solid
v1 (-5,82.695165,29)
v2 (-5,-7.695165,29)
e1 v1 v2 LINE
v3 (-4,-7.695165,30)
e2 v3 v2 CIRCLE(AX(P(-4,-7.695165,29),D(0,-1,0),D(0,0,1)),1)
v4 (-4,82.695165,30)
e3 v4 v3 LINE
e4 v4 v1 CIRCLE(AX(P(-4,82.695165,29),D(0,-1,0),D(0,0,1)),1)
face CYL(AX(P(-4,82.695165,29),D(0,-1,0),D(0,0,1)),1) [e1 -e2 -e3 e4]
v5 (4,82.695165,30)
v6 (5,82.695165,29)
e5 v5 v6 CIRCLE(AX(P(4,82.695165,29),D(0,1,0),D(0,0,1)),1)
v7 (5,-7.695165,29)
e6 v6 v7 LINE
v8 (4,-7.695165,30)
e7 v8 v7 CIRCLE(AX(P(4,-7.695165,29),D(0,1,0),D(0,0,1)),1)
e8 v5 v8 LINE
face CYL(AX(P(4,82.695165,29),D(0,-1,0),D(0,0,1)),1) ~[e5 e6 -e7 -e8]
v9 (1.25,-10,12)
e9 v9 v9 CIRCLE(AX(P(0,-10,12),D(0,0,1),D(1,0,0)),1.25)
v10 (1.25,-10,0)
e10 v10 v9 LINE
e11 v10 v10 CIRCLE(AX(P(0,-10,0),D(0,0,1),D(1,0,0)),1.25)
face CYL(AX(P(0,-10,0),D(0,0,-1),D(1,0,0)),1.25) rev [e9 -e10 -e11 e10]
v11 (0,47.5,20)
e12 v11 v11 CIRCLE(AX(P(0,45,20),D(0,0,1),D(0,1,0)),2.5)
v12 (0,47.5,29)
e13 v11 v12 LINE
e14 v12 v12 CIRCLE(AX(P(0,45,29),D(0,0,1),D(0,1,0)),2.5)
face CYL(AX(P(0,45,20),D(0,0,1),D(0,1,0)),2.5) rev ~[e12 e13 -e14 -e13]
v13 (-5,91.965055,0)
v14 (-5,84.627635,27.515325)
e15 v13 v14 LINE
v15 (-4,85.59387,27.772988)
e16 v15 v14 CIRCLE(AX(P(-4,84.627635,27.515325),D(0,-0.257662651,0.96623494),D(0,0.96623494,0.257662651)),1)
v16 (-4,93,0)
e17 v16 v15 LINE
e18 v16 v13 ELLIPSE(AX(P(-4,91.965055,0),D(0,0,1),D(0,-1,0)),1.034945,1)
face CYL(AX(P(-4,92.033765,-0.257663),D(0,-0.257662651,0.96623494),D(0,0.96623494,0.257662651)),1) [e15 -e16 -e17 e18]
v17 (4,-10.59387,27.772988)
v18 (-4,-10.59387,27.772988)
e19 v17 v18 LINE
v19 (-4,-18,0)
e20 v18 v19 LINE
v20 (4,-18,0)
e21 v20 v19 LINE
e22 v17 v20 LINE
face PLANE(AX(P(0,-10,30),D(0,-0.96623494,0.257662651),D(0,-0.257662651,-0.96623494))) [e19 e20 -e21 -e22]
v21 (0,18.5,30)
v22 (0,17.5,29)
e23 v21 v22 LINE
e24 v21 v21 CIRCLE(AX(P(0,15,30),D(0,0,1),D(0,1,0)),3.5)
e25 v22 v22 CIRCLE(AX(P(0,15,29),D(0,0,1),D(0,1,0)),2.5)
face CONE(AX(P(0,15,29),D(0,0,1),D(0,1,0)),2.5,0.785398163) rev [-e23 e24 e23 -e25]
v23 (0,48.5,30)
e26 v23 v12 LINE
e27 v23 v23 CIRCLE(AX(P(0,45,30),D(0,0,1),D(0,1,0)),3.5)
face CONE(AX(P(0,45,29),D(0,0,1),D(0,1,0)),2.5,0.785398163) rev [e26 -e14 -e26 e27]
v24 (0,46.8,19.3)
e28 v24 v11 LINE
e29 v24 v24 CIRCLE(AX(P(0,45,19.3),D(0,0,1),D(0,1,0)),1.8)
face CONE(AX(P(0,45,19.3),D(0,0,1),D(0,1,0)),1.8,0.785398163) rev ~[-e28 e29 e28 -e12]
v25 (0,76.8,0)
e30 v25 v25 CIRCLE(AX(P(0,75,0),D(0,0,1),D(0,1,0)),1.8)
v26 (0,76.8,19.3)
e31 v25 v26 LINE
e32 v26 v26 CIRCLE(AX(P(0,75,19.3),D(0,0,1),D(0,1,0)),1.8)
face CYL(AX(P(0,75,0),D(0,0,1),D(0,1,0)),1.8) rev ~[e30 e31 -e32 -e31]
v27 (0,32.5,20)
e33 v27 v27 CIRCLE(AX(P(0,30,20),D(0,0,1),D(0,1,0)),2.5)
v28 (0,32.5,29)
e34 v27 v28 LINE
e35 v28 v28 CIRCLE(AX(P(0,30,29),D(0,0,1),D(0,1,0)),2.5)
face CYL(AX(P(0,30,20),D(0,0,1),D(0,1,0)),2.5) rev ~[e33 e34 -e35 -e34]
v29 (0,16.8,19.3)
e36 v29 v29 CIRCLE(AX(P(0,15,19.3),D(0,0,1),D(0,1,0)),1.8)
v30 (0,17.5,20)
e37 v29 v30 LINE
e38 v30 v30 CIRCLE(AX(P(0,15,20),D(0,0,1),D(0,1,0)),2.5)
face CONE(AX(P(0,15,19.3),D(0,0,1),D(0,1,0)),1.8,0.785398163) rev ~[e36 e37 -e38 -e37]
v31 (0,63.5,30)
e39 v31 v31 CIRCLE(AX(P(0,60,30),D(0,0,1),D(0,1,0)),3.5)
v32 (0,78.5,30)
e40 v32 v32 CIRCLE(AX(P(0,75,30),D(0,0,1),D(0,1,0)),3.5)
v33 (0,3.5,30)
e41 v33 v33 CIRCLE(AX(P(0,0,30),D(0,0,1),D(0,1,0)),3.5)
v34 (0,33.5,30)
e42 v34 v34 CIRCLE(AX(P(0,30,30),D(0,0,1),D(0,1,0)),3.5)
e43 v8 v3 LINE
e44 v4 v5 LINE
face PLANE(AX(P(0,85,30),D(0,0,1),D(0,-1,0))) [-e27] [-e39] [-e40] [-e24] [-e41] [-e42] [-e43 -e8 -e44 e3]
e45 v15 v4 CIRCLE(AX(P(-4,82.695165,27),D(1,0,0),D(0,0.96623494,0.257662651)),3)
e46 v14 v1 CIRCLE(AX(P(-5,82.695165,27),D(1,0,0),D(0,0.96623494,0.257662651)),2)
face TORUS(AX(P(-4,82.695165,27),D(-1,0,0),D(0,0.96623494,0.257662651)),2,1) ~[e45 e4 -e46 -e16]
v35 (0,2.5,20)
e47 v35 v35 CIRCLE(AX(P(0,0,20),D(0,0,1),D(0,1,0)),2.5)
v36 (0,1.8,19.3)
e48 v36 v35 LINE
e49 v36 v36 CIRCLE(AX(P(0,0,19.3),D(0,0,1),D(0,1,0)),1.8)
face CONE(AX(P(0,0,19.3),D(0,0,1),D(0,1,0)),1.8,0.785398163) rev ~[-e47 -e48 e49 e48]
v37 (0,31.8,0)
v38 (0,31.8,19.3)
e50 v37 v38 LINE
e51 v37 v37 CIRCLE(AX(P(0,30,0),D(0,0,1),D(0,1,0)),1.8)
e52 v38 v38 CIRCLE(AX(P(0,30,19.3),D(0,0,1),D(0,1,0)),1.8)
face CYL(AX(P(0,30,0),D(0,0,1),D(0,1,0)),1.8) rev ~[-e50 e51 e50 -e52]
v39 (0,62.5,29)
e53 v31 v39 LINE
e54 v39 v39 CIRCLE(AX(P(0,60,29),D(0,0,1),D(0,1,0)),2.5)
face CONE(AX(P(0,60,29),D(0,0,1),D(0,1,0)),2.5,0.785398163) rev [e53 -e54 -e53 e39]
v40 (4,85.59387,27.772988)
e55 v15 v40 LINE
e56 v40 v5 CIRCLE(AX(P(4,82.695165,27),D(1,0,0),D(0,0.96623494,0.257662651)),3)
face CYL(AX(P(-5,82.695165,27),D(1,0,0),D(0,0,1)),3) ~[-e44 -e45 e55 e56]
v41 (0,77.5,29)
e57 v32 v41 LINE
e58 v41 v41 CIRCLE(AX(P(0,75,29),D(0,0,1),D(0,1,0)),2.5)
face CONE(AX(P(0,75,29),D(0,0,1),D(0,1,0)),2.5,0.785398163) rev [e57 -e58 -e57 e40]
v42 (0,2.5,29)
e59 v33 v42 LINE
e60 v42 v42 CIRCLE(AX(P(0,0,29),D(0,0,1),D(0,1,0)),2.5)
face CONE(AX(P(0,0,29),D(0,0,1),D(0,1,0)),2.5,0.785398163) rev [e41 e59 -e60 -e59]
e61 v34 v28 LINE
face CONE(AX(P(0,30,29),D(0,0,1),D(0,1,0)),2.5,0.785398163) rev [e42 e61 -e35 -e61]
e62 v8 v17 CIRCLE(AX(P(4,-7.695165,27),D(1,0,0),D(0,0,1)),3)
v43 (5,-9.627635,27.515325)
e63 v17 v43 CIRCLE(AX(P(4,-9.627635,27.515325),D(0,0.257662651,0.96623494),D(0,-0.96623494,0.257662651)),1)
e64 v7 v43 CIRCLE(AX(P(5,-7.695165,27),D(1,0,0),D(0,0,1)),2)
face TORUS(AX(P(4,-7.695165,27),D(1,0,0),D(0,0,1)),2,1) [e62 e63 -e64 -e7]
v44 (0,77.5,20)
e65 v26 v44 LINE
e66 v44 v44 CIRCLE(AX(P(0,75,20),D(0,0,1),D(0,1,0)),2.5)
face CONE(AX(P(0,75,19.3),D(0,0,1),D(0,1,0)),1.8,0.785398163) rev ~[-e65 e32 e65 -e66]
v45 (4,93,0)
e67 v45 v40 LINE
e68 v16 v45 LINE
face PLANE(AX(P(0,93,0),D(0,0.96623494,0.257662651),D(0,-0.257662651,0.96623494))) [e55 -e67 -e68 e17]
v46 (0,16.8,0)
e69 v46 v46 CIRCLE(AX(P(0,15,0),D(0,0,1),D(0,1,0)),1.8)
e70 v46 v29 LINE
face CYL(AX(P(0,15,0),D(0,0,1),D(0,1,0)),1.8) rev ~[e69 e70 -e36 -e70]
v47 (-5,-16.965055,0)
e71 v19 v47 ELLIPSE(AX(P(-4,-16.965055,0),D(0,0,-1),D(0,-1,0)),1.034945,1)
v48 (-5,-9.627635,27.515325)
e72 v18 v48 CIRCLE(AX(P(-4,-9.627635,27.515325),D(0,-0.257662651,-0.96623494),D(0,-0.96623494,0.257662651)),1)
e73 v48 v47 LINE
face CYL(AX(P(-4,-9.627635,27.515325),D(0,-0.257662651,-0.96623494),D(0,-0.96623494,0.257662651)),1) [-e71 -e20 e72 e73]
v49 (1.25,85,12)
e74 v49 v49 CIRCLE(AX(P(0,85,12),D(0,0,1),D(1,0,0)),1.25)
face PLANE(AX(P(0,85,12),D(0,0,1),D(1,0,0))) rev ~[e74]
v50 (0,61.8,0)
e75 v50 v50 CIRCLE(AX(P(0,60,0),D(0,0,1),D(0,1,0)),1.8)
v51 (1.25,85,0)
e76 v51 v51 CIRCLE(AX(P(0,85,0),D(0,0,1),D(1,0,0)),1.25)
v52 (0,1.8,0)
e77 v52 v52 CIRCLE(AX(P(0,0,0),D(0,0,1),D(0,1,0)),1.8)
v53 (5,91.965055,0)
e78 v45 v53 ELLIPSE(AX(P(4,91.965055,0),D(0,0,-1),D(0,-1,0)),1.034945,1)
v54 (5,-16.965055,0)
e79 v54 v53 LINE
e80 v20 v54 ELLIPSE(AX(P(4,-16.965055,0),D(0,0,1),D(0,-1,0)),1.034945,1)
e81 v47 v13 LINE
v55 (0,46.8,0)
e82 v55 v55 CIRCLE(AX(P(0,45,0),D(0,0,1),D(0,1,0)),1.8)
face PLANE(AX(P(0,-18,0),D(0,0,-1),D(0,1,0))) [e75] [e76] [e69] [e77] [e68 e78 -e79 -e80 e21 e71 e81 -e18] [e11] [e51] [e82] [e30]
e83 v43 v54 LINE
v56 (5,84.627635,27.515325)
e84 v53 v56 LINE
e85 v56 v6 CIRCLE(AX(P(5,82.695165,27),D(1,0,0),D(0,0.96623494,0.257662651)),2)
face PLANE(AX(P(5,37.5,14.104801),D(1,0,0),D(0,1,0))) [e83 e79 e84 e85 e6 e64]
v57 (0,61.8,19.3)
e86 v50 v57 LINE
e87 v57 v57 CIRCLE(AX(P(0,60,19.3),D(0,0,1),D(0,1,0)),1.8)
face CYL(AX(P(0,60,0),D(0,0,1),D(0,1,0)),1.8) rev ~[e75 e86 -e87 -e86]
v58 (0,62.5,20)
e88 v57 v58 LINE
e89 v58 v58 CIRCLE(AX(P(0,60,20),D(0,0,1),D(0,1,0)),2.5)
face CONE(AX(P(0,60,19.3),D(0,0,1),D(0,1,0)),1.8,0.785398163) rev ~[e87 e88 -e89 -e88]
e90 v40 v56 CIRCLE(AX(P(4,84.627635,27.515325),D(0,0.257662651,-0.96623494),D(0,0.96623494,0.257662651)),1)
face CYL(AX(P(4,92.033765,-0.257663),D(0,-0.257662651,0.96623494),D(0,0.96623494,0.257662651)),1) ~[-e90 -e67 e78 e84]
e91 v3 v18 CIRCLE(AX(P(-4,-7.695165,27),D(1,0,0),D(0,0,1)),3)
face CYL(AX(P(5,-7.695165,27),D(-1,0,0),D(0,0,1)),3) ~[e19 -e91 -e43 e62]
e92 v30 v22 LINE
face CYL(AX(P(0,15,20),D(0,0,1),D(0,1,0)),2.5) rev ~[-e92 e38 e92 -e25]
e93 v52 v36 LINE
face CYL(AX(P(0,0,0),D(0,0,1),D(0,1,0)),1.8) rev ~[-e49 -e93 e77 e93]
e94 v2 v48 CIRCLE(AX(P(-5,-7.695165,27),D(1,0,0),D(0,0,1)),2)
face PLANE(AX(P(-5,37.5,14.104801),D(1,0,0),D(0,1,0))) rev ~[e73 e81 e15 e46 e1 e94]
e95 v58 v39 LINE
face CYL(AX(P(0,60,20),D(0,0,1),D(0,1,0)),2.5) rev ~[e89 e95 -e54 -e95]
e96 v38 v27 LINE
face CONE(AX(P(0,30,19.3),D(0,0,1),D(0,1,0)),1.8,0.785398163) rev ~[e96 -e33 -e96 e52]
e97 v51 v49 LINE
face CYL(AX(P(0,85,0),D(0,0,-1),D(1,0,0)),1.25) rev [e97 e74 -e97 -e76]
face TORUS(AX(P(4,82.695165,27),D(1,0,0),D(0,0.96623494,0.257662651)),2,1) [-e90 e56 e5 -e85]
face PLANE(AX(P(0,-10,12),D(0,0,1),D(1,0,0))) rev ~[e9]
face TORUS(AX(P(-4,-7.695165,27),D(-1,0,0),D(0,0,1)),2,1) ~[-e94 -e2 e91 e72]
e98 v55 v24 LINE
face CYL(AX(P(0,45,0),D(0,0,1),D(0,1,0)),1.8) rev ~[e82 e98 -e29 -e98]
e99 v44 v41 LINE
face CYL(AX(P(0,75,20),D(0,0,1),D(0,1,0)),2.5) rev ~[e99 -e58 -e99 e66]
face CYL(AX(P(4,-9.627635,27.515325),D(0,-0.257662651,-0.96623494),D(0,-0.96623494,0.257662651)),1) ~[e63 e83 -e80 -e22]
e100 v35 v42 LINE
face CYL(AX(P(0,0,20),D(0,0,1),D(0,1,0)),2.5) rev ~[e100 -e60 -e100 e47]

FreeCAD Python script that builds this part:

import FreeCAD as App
import Part
import Sketcher
Q = App.Units.Quantity


def edges_at(feature, points):
    """Names of the edges that pass closest to the given points."""
    edges = feature.Shape.Edges
    near = lambda p: min(range(len(edges)), key=lambda i: edges[i].distToShape(Part.Vertex(*p))[0])
    return sorted({f"Edge{near(p) + 1}" for p in points})

doc = App.newDocument("Part")
body = doc.addObject("PartDesign::Body", "Body")

sketch1 = body.newObject("Sketcher::SketchObject", "Sketch")
sketch1.AttachmentSupport = (doc.getObject("YZ_Plane"), [""])
sketch1.MapMode = "FlatFace"
sketch1.addGeometry([
    Part.LineSegment(App.Vector(-18, 0, 0), App.Vector(93, 0, 0)),
    Part.LineSegment(App.Vector(93, 0, 0), App.Vector(85, 30, 0)),
    Part.LineSegment(App.Vector(85, 30, 0), App.Vector(-10, 30, 0)),
    Part.LineSegment(App.Vector(-10, 30, 0), App.Vector(-18, 0, 0)),
], False)
sketch1.addConstraint([
    Sketcher.Constraint("Coincident", 0, 2, 1, 1),
    Sketcher.Constraint("Coincident", 1, 2, 2, 1),
    Sketcher.Constraint("Coincident", 2, 2, 3, 1),
    Sketcher.Constraint("Coincident", 3, 2, 0, 1),
    Sketcher.Constraint("Horizontal", 0),
    Sketcher.Constraint("Horizontal", 2),
    Sketcher.Constraint("PointOnObject", 0, 2, -1),
    Sketcher.Constraint("Equal", 1, 3),
    Sketcher.Constraint("DistanceX", 0, 1, 0, 2, 111.0),
    Sketcher.Constraint("DistanceX", 2, 2, 2, 1, 95.0),
    Sketcher.Constraint("DistanceX", -1, 1, 0, 2, 93.0),
    Sketcher.Constraint("DistanceY", -1, 1, 1, 2, 30.0),
])
pad1 = body.newObject("PartDesign::Pad", "Pad")
pad1.Profile = sketch1
pad1.Length = 10
pad1.Midplane = True

sketch2 = body.newObject("Sketcher::SketchObject", "Sketch001")
sketch2.AttachmentSupport = (doc.getObject("YZ_Plane"), [""])
sketch2.MapMode = "FlatFace"
sketch2.addGeometry([
    Part.LineSegment(App.Vector(0, 0, 0), App.Vector(1.8, 0, 0)),
    Part.LineSegment(App.Vector(1.8, 0, 0), App.Vector(1.8, 19.3, 0)),
    Part.LineSegment(App.Vector(1.8, 19.3, 0), App.Vector(2.5, 20, 0)),
    Part.LineSegment(App.Vector(2.5, 20, 0), App.Vector(2.5, 30, 0)),
    Part.LineSegment(App.Vector(2.5, 30, 0), App.Vector(0, 30, 0)),
    Part.LineSegment(App.Vector(0, 30, 0), App.Vector(0, 0, 0)),
], False)
sketch2.addConstraint([
    Sketcher.Constraint("Coincident", 0, 2, 1, 1),
    Sketcher.Constraint("Coincident", 1, 2, 2, 1),
    Sketcher.Constraint("Coincident", 2, 2, 3, 1),
    Sketcher.Constraint("Coincident", 3, 2, 4, 1),
    Sketcher.Constraint("Coincident", 4, 2, 5, 1),
    Sketcher.Constraint("Coincident", 5, 2, 0, 1),
    Sketcher.Constraint("Horizontal", 0),
    Sketcher.Constraint("Vertical", 1),
    Sketcher.Constraint("Vertical", 3),
    Sketcher.Constraint("Horizontal", 4),
    Sketcher.Constraint("Vertical", 5),
    Sketcher.Constraint("Coincident", 5, 2, -1, 1),
    Sketcher.Constraint("DistanceY", 3, 1, 3, 2, 10.0),
    Sketcher.Constraint("DistanceY", 5, 2, 5, 1, 30.0),
    Sketcher.Constraint("Angle", 2, Q("45 deg")),
    Sketcher.Constraint("DistanceX", 0, 1, 0, 2, 1.8),
    Sketcher.Constraint("DistanceX", 4, 2, 4, 1, 2.5),
])
groove = body.newObject("PartDesign::Groove", "Groove")
groove.Profile = sketch2
groove.ReferenceAxis = (sketch2, ["V_Axis"])
groove.Angle = 360
doc.recompute()

linearpattern = body.newObject("PartDesign::LinearPattern", "LinearPattern")
linearpattern.Originals = [groove]
linearpattern.Direction = (doc.getObject("Y_Axis"), [""])
linearpattern.Mode = "offset"
linearpattern.Offset = 15
linearpattern.Occurrences = 6
body.Tip = linearpattern

sketch3 = body.newObject("Sketcher::SketchObject", "Sketch002")
sketch3.AttachmentSupport = (doc.getObject("XY_Plane"), [""])
sketch3.MapMode = "FlatFace"
sketch3.addGeometry([
    Part.Circle(App.Vector(0, 85, 0), App.Vector(0, 0, 1), 1.2),
    Part.Circle(App.Vector(0, -10, 0), App.Vector(0, 0, 1), 1.2),
], False)
sketch3.addConstraint([
    Sketcher.Constraint("Equal", 0, 1),
    Sketcher.Constraint("PointOnObject", 0, 3, -2),
    Sketcher.Constraint("PointOnObject", 1, 3, -2),
    Sketcher.Constraint("Diameter", 0, 2.5),
    Sketcher.Constraint("DistanceY", -1, 1, 0, 3, 85.0),
    Sketcher.Constraint("DistanceY", 1, 3, -1, 1, 10.0),
])
pocket1 = body.newObject("PartDesign::Pocket", "Pocket")
pocket1.Profile = sketch3
pocket1.Length = 12
pocket1.Reversed = True
doc.recompute()

chamfer = body.newObject("PartDesign::Chamfer", "Chamfer")
chamfer.Base = (pocket1, edges_at(pocket1, [
    (0, -2.5, 30),
    (0, 12.5, 30),
    (0, 27.5, 30),
    (0, 42.5, 30),
    (0, 57.5, 30),
    (0, 72.5, 30),
]))
chamfer.Size = 1
doc.recompute()

fillet = body.newObject("PartDesign::Fillet", "Fillet")
fillet.Base = (chamfer, edges_at(chamfer, [(0, -10, 30), (0, 85, 30)]))
fillet.Radius = 3
doc.recompute()

fillet2 = body.newObject("PartDesign::Fillet", "Fillet001")
fillet2.Base = (fillet, edges_at(fillet, [(5, -9.523, 29.379), (-5, 37.5, 30)]))
fillet2.Radius = 1

doc.recompute()
